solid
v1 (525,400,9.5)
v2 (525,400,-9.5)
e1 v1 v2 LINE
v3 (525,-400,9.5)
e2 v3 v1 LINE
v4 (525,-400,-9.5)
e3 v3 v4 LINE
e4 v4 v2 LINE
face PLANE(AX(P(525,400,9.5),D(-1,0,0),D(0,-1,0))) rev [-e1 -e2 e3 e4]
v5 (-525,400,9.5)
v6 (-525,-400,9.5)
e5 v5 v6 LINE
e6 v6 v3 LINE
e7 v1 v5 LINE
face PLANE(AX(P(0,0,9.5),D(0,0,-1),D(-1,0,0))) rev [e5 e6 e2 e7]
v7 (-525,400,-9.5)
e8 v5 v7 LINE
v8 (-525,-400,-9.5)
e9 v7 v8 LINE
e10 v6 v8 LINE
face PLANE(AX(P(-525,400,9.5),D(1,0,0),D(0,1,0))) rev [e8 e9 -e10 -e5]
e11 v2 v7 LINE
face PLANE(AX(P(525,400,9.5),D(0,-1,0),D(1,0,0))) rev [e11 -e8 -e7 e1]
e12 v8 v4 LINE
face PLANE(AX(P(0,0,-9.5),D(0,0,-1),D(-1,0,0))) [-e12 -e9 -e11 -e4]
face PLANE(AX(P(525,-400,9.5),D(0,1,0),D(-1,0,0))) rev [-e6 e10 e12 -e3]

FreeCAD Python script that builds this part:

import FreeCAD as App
import Part
import Sketcher

doc = App.newDocument("Part")
body = doc.addObject("PartDesign::Body", "Body")

# Sketch on XY plane
sketch1 = body.newObject("Sketcher::SketchObject", "Sketch")
sketch1.AttachmentSupport = (doc.getObject("XY_Plane"), [""])
sketch1.MapMode = "FlatFace"
sketch1.addGeometry([
    Part.LineSegment(App.Vector(-525, 400, 0), App.Vector(-525, -400, 0)),
    Part.LineSegment(App.Vector(-525, -400, 0), App.Vector(525, -400, 0)),
    Part.LineSegment(App.Vector(525, -400, 0), App.Vector(525, 400, 0)),
    Part.LineSegment(App.Vector(525, 400, 0), App.Vector(-525, 400, 0)),
], False)
sketch1.addConstraint([
    Sketcher.Constraint("Coincident", 0, 2, 1, 1),
    Sketcher.Constraint("Coincident", 1, 2, 2, 1),
    Sketcher.Constraint("Coincident", 2, 2, 3, 1),
    Sketcher.Constraint("Coincident", 3, 2, 0, 1),
    Sketcher.Constraint("Vertical", 0),
    Sketcher.Constraint("Horizontal", 1),
    Sketcher.Constraint("Vertical", 2),
    Sketcher.Constraint("Horizontal", 3),
    Sketcher.Constraint("Symmetric", 0, 2, 2, 2, -1, 1),
    Sketcher.Constraint("DistanceX", 1, 1, 1, 2, 1050.0),
    Sketcher.Constraint("DistanceY", 0, 2, 0, 1, 800.0),
])
pad1 = body.newObject("PartDesign::Pad", "Pad")
pad1.Profile = sketch1
pad1.Length = 19
pad1.Midplane = True

doc.recompute()
